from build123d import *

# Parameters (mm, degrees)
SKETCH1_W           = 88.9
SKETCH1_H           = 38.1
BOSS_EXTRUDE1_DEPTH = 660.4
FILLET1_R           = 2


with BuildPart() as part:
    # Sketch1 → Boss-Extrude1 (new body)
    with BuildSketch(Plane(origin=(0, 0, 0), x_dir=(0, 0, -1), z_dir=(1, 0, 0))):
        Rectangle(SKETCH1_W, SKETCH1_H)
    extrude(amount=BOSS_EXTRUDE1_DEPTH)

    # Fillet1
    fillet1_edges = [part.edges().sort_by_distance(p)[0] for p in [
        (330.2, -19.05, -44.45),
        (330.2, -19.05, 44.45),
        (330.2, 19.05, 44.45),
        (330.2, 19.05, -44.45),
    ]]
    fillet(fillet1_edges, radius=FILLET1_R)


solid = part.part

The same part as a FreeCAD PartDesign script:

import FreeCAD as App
import Part
import Sketcher
Q = App.Units.Quantity


def edges_at(feature, points):
    """Names of the edges that pass closest to the given points."""
    edges = feature.Shape.Edges
    near = lambda p: min(range(len(edges)), key=lambda i: edges[i].distToShape(Part.Vertex(*p))[0])
    return sorted({f"Edge{near(p) + 1}" for p in points})


def add_polygon(sketch, points):
    """Adds a closed chain of lines whose ends are joined by coincident constraints."""
    first, n = sketch.GeometryCount, len(points)
    for a, b in zip(points, points[1:] + points[:1]):
        sketch.addGeometry(Part.LineSegment(App.Vector(*a, 0), App.Vector(*b, 0)), False)
    for i in range(n):
        sketch.addConstraint(Sketcher.Constraint("Coincident", first + i, 2, first + (i + 1) % n, 1))

doc = App.newDocument("Part")
body = doc.addObject("PartDesign::Body", "Body")

# Sketch on YZ plane
sketch1 = body.newObject("Sketcher::SketchObject", "Sketch")
sketch1.AttachmentSupport = (doc.getObject("YZ_Plane"), [""])
sketch1.MapMode = "FlatFace"
add_polygon(sketch1, [(19, 44), (-19, 44), (-19, -44), (19, -44)])  # lines 0-3
sketch1.addConstraint(Sketcher.Constraint("Horizontal", 0))
sketch1.addConstraint(Sketcher.Constraint("Vertical", 1))
sketch1.addConstraint(Sketcher.Constraint("Horizontal", 2))
sketch1.addConstraint(Sketcher.Constraint("Vertical", 3))
sketch1.addConstraint(Sketcher.Constraint("Symmetric", 0, 2, 2, 2, -1, 1))
sketch1.addConstraint(Sketcher.Constraint("DistanceX", 0, 2, 0, 1, Q("1.5 in")))
sketch1.addConstraint(Sketcher.Constraint("DistanceY", 1, 2, 1, 1, Q("3.5 in")))
pad1 = body.newObject("PartDesign::Pad", "Pad")
pad1.Profile = sketch1
pad1.Length = Q("26 in")
doc.recompute()

fillet = body.newObject("PartDesign::Fillet", "Fillet")
fillet.Base = (pad1, edges_at(pad1, [
    (330.2, -19.05, -44.45),
    (330.2, -19.05, 44.45),
    (330.2, 19.05, 44.45),
    (330.2, 19.05, -44.45),
]))
fillet.Radius = 2

doc.recompute()
